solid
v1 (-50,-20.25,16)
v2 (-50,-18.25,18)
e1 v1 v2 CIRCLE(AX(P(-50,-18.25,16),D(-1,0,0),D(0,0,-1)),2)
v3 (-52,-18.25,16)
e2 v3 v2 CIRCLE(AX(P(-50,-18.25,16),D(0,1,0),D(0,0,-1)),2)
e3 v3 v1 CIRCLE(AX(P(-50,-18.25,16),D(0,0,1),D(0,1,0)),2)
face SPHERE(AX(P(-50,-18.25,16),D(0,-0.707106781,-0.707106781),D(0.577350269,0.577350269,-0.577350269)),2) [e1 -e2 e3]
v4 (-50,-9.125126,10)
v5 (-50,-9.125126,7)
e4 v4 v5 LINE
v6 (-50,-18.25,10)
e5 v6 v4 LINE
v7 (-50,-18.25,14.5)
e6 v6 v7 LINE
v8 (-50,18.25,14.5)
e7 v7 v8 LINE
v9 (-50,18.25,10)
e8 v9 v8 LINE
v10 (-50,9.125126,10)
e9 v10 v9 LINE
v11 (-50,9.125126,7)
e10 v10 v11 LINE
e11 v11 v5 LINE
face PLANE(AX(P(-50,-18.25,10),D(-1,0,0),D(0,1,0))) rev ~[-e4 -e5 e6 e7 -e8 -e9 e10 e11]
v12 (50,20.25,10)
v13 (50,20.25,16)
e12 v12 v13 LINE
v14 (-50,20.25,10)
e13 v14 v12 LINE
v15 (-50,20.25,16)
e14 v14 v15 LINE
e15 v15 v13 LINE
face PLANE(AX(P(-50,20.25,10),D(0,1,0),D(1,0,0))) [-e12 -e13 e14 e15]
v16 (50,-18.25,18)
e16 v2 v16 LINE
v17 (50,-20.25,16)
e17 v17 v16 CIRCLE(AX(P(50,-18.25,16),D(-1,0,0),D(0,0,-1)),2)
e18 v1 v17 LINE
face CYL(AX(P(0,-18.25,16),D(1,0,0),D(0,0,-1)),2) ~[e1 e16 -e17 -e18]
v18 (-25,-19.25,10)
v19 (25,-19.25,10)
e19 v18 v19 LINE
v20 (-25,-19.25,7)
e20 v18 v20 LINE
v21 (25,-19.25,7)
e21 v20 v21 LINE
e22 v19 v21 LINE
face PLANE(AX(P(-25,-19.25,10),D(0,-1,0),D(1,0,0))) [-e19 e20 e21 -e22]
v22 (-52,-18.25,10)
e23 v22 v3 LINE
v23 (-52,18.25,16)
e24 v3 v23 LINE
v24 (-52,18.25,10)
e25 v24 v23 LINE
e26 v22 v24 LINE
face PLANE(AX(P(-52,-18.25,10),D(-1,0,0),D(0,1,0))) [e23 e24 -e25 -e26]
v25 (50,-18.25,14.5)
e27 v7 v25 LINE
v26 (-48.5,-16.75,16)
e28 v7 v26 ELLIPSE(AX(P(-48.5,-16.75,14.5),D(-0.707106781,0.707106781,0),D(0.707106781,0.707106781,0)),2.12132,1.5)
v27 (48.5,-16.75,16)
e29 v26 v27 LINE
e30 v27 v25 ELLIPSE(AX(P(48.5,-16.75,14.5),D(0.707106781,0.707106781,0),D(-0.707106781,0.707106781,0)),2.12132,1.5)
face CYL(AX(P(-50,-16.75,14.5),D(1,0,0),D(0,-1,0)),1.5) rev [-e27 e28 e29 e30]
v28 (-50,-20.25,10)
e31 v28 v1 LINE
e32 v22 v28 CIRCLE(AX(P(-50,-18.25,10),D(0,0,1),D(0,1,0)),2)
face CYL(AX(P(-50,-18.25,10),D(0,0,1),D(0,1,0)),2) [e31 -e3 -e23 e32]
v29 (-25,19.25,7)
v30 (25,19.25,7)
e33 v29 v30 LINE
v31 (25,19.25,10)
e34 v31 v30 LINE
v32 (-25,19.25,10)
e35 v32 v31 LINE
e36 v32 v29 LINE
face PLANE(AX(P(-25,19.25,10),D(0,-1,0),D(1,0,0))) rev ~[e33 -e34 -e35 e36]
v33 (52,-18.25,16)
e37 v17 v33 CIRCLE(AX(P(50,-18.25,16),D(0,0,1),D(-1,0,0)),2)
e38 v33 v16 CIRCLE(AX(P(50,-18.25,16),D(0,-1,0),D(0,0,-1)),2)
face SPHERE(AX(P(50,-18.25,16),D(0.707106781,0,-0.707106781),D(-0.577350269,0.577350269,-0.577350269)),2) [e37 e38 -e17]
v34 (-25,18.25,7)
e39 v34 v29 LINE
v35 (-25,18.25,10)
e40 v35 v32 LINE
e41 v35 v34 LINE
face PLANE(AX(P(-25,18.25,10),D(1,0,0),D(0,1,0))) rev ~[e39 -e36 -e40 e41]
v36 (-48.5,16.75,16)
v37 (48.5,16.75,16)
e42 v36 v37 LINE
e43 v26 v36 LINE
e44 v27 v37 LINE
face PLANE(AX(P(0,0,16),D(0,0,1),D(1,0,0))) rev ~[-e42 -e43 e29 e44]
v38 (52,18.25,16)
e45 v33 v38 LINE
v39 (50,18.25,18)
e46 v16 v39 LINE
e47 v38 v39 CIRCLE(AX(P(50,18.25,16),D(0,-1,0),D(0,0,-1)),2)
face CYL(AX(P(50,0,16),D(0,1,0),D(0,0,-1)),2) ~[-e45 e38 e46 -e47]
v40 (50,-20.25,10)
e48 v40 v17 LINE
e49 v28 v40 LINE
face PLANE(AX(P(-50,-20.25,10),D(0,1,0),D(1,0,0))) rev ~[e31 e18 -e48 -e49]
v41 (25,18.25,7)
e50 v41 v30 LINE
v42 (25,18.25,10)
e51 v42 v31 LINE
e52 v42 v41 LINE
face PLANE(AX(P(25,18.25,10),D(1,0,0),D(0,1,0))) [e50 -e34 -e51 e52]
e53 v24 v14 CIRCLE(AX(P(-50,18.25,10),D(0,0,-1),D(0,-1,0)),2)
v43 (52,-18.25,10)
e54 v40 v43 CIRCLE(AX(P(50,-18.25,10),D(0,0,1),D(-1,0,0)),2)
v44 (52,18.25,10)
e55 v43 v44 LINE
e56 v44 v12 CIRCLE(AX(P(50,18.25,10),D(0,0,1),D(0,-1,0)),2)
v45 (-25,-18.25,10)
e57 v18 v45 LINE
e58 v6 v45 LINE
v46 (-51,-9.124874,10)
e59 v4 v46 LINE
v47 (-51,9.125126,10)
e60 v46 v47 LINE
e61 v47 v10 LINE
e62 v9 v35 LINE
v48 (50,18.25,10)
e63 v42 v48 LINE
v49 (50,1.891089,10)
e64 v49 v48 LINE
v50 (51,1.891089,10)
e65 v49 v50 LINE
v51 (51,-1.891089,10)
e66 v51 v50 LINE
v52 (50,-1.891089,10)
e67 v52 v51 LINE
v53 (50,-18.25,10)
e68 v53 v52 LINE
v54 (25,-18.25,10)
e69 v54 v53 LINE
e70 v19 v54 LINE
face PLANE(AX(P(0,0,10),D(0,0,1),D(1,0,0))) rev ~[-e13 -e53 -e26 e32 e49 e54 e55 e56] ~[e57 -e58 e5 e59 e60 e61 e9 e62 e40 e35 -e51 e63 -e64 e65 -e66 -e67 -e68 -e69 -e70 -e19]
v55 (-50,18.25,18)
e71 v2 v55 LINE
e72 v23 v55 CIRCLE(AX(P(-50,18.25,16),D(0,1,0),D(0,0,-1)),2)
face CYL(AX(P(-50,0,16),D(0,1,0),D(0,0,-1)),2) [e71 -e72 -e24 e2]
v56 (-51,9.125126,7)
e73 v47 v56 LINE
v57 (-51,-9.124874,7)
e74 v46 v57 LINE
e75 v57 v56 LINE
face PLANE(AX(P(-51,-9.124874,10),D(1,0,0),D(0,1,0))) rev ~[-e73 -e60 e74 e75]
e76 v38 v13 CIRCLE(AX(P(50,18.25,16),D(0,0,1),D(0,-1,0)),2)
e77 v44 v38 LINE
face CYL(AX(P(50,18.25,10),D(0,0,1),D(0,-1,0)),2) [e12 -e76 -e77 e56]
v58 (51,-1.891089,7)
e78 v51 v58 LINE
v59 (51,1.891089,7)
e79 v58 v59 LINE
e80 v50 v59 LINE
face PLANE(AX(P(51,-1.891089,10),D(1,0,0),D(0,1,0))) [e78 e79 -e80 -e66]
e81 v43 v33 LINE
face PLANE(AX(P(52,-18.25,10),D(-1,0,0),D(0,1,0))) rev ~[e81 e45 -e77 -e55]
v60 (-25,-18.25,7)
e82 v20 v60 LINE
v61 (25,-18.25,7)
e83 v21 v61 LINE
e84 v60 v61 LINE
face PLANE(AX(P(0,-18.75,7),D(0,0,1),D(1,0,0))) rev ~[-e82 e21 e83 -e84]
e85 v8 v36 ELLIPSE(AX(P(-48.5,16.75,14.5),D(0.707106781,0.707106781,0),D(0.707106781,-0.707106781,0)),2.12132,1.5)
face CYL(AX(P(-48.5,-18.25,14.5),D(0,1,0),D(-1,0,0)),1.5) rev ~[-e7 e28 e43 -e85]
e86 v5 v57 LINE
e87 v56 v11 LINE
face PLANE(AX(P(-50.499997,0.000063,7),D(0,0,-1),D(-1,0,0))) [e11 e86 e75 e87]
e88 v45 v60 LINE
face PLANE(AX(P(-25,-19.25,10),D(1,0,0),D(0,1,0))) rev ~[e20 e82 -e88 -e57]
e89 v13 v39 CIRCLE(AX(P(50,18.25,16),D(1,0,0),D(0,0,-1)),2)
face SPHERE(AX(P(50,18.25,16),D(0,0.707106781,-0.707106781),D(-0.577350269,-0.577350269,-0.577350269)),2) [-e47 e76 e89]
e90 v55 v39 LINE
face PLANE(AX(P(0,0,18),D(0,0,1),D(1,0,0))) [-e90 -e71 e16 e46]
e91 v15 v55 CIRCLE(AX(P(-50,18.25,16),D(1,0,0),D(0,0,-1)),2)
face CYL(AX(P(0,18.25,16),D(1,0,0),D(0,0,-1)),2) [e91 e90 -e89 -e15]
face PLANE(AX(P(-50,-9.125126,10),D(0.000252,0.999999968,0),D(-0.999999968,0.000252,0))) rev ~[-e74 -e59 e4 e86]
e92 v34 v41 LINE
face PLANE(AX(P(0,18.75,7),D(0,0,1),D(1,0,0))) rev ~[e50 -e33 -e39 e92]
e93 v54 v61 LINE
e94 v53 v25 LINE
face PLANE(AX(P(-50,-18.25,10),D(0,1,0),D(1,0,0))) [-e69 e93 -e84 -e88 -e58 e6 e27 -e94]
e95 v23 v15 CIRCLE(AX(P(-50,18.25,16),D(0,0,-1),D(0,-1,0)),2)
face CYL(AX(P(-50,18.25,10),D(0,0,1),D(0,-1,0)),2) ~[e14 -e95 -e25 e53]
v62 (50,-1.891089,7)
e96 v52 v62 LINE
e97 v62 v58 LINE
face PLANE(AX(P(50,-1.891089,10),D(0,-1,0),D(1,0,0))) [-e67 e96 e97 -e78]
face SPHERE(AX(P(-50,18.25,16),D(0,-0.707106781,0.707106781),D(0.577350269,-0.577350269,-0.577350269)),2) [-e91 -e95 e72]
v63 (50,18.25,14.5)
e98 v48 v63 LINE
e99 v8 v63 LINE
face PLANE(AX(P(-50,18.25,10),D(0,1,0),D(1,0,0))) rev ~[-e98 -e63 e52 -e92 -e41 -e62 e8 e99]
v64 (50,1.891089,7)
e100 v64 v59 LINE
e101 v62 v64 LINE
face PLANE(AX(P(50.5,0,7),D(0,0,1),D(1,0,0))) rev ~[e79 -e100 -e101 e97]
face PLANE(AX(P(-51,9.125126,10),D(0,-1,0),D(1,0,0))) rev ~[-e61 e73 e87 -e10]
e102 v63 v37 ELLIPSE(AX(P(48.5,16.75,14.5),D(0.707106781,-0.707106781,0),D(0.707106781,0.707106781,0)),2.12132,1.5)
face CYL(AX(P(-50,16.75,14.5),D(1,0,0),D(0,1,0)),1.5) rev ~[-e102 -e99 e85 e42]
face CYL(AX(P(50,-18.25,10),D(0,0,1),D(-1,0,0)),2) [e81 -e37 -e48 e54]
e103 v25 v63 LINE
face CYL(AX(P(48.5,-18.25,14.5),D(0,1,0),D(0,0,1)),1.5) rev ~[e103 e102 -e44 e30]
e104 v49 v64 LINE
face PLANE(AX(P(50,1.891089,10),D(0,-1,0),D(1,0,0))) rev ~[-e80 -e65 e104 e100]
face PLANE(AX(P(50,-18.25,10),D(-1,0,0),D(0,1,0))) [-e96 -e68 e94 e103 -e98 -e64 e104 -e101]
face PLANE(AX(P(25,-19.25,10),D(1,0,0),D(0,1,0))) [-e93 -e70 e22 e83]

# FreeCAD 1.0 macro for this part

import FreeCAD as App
import Part
import Sketcher
Q = App.Units.Quantity


def edges_at(feature, points):
    """Names of the edges that pass closest to the given points."""
    edges = feature.Shape.Edges
    near = lambda p: min(range(len(edges)), key=lambda i: edges[i].distToShape(Part.Vertex(*p))[0])
    return sorted({f"Edge{near(p) + 1}" for p in points})


def faces_at(feature, points):
    """Names of the faces that lie closest to the given points."""
    faces = feature.Shape.Faces
    near = lambda p: min(range(len(faces)), key=lambda i: faces[i].distToShape(Part.Vertex(*p))[0])
    return sorted({f"Face{near(p) + 1}" for p in points})

doc = App.newDocument("Part")
body = doc.addObject("PartDesign::Body", "Body")

# Sketch on XY plane
sketch1 = body.newObject("Sketcher::SketchObject", "Sketch")
sketch1.AttachmentSupport = (doc.getObject("XY_Plane"), [""])
sketch1.MapMode = "FlatFace"
sketch1.addGeometry([
    Part.LineSegment(App.Vector(-50, 18, 0), App.Vector(-50, -18, 0)),
    Part.LineSegment(App.Vector(-50, -18, 0), App.Vector(50, -18, 0)),
    Part.LineSegment(App.Vector(50, -18, 0), App.Vector(50, 18, 0)),
    Part.LineSegment(App.Vector(50, 18, 0), App.Vector(-50, 18, 0)),
], False)
sketch1.addConstraint([
    Sketcher.Constraint("Coincident", 0, 2, 1, 1),
    Sketcher.Constraint("Coincident", 1, 2, 2, 1),
    Sketcher.Constraint("Coincident", 2, 2, 3, 1),
    Sketcher.Constraint("Coincident", 3, 2, 0, 1),
    Sketcher.Constraint("Vertical", 0),
    Sketcher.Constraint("Horizontal", 1),
    Sketcher.Constraint("Vertical", 2),
    Sketcher.Constraint("Horizontal", 3),
    Sketcher.Constraint("Symmetric", 0, 2, 2, 2, -1, 1),
    Sketcher.Constraint("DistanceX", 1, 1, 1, 2, Q("100 mm")),
    Sketcher.Constraint("DistanceY", 0, 2, 0, 1, Q("36.5 mm")),
])
pad1 = body.newObject("PartDesign::Pad", "Pad")
pad1.Profile = sketch1
pad1.Length = 6
doc.recompute()

thickness = body.newObject("PartDesign::Thickness", "Thickness")
thickness.Base = (pad1, faces_at(pad1, [(0, 0, 0)]))
thickness.Value = 2
thickness.Reversed = False
thickness.Join = "Arc"

# Sketch on XY plane
sketch2 = body.newObject("Sketcher::SketchObject", "Sketch001")
sketch2.AttachmentSupport = (doc.getObject("XY_Plane"), [""])
sketch2.MapMode = "FlatFace"
sketch2.addGeometry([
    Part.LineSegment(App.Vector(-25, -18.2, 0), App.Vector(-25, -19.2, 0)),  # 0
    Part.LineSegment(App.Vector(-25, -19.2, 0), App.Vector(25, -19.2, 0)),  # 1
    Part.LineSegment(App.Vector(25, -19.2, 0), App.Vector(25, -18.2, 0)),  # 2
    Part.LineSegment(App.Vector(25, -18.2, 0), App.Vector(-25, -18.2, 0)),  # 3
    Part.LineSegment(App.Vector(50, 1.9, 0), App.Vector(50, -1.9, 0)),  # 4
    Part.LineSegment(App.Vector(50, -1.9, 0), App.Vector(51, -1.9, 0)),  # 5
    Part.LineSegment(App.Vector(51, -1.9, 0), App.Vector(51, 1.9, 0)),  # 6
    Part.LineSegment(App.Vector(51, 1.9, 0), App.Vector(50, 1.9, 0)),  # 7
    Part.LineSegment(App.Vector(-25, 19.2, 0), App.Vector(-25, 18.2, 0)),  # 8
    Part.LineSegment(App.Vector(-25, 18.2, 0), App.Vector(25, 18.2, 0)),  # 9
    Part.LineSegment(App.Vector(25, 18.2, 0), App.Vector(25, 19.2, 0)),  # 10
    Part.LineSegment(App.Vector(25, 19.2, 0), App.Vector(-25, 19.2, 0)),  # 11
    Part.LineSegment(App.Vector(-51, -9.1, 0), App.Vector(-50, -9.1, 0)),  # 12
    Part.LineSegment(App.Vector(-50, -9.1, 0), App.Vector(-50, 9.1, 0)),  # 13
    Part.LineSegment(App.Vector(-50, 9.1, 0), App.Vector(-51, 9.1, 0)),  # 14
    Part.LineSegment(App.Vector(-51, 9.1, 0), App.Vector(-51, -9.1, 0)),  # 15
], False)
sketch2.addConstraint([
    Sketcher.Constraint("Coincident", 0, 2, 1, 1),
    Sketcher.Constraint("Coincident", 1, 2, 2, 1),
    Sketcher.Constraint("Coincident", 2, 2, 3, 1),
    Sketcher.Constraint("Coincident", 3, 2, 0, 1),
    Sketcher.Constraint("Coincident", 4, 2, 5, 1),
    Sketcher.Constraint("Coincident", 5, 2, 6, 1),
    Sketcher.Constraint("Coincident", 6, 2, 7, 1),
    Sketcher.Constraint("Coincident", 7, 2, 4, 1),
    Sketcher.Constraint("Coincident", 8, 2, 9, 1),
    Sketcher.Constraint("Coincident", 9, 2, 10, 1),
    Sketcher.Constraint("Coincident", 10, 2, 11, 1),
    Sketcher.Constraint("Coincident", 11, 2, 8, 1),
    Sketcher.Constraint("Coincident", 12, 2, 13, 1),
    Sketcher.Constraint("Coincident", 13, 2, 14, 1),
    Sketcher.Constraint("Coincident", 14, 2, 15, 1),
    Sketcher.Constraint("Coincident", 15, 2, 12, 1),
    Sketcher.Constraint("Vertical", 0),
    Sketcher.Constraint("Horizontal", 1),
    Sketcher.Constraint("Vertical", 2),
    Sketcher.Constraint("Horizontal", 3),
    Sketcher.Constraint("Vertical", 4),
    Sketcher.Constraint("Horizontal", 5),
    Sketcher.Constraint("Vertical", 6),
    Sketcher.Constraint("Horizontal", 7),
    Sketcher.Constraint("Vertical", 8),
    Sketcher.Constraint("Horizontal", 9),
    Sketcher.Constraint("Vertical", 10),
    Sketcher.Constraint("Horizontal", 11),
    Sketcher.Constraint("Vertical", 13),
    Sketcher.Constraint("Horizontal", 14),
    Sketcher.Constraint("Vertical", 15),
    Sketcher.Constraint("Symmetric", 2, 2, 8, 2, -1, 1),
    Sketcher.Constraint("Symmetric", 0, 2, 10, 2, -1, 1),
    Sketcher.Constraint("Vertical", 3, 2, 8, 2),
    Sketcher.Constraint("Equal", 7, 14),
    Sketcher.Constraint("Equal", 14, 0),
    Sketcher.Constraint("DistanceX", 1, 1, 1, 2, Q("50 mm")),
    Sketcher.Constraint("DistanceX", 5, 1, 5, 2, Q("1 mm")),
    Sketcher.Constraint("DistanceX", -1, 1, 4, 2, Q("50 mm")),
    Sketcher.Constraint("DistanceX", 12, 2, -1, 1, Q("50 mm")),
    Sketcher.Constraint("DistanceY", 15, 2, 15, 1, Q("18.25 mm")),
    Sketcher.Constraint("DistanceY", 3, 2, 8, 2, Q("36.5 mm")),
    Sketcher.Constraint("DistanceY", 4, 2, 4, 1, Q("3.782178 mm")),
    Sketcher.Constraint("DistanceY", 13, 1, 13, 2, Q("18.250252 mm")),
    Sketcher.Constraint("DistanceY", 4, 2, -1, 1, Q("1.891089 mm")),
    Sketcher.Constraint("DistanceY", 12, 2, -1, 1, Q("9.125126 mm")),
])
pad2 = body.newObject("PartDesign::Pad", "Pad001")
pad2.Profile = sketch2
pad2.Length = 3
pad2.Reversed = True
doc.recompute()

fillet = body.newObject("PartDesign::Fillet", "Fillet")
fillet.Base = (pad2, edges_at(pad2, [
    (0, 18.25, 6),
    (50, 0, 6),
    (0, -18.25, 6),
    (-50, 0, 6),
]))
fillet.Radius = 1.5
body2 = doc.addObject("PartDesign::Body", "Body001")
doc.recompute()

body.Placement = App.Placement(App.Vector(0, 0, 10), App.Rotation(App.Vector(0, 0, 1), 0))
boolean = body2.newObject("PartDesign::Boolean", "Boolean")
boolean.Type = "Fuse"
boolean.addObjects([body])

doc.recompute()
